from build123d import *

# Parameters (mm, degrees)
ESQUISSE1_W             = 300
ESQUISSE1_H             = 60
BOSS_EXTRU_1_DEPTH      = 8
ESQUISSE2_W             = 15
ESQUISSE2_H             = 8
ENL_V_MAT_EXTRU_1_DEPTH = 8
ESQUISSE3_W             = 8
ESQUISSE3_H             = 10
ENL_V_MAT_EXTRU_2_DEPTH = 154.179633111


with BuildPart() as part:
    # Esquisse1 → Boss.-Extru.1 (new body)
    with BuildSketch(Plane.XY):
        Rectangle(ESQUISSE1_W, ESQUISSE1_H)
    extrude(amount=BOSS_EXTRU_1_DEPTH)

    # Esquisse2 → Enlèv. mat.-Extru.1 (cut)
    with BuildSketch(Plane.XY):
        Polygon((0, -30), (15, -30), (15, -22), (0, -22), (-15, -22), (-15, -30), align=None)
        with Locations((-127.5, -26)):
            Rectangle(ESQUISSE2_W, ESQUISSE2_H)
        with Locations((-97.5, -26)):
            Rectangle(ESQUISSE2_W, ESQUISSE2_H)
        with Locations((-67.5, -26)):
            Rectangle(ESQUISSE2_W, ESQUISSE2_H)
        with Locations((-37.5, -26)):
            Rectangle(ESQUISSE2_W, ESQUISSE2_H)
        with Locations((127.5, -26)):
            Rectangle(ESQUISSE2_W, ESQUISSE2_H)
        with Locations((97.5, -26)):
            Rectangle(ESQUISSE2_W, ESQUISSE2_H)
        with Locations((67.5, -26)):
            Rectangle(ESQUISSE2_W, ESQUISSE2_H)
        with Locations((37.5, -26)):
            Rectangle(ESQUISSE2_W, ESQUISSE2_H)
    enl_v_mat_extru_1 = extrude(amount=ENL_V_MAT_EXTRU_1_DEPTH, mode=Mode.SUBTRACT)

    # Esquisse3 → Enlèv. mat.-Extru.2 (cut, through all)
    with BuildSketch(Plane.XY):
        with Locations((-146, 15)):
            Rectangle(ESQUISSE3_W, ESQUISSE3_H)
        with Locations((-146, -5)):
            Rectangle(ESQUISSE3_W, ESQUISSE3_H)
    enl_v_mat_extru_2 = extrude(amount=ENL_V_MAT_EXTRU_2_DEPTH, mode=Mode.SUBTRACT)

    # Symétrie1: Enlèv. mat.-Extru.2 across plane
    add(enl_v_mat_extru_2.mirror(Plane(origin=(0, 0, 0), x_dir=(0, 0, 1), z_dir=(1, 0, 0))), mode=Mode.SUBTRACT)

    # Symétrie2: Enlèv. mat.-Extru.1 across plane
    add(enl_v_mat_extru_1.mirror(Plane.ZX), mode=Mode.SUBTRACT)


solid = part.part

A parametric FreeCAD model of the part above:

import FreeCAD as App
import Part
import Sketcher

V = App.Vector
Q = App.Units.Quantity


def add_polygon(sketch, points):
    """Adds a closed chain of lines whose ends are joined by coincident constraints."""
    first, n = sketch.GeometryCount, len(points)
    for a, b in zip(points, points[1:] + points[:1]):
        sketch.addGeometry(Part.LineSegment(App.Vector(*a, 0), App.Vector(*b, 0)), False)
    for i in range(n):
        sketch.addConstraint(Sketcher.Constraint("Coincident", first + i, 2, first + (i + 1) % n, 1))

doc = App.newDocument("Part")
params = doc.addObject("Spreadsheet::Sheet", "Params")
for row, (alias, value) in enumerate([
    ("sketch1_width", "300 mm"),
    ("sketch1_height", "60 mm"),
    ("pad1_length", "8 mm"),
    ("sketch2_width", "30 mm"),
    ("sketch2_width2", "15 mm"),
    ("sketch2_height", "8 mm"),
    ("pocket1_length", "8 mm"),
    ("sketch3_width", "8 mm"),
    ("sketch3_height", "10 mm"),
], start=1):
    params.set(f"A{row}", alias)
    params.set(f"B{row}", "=" + value)
    params.setAlias(f"B{row}", alias)

body = doc.addObject("PartDesign::Body", "Body")

sketch1 = doc.addObject("Sketcher::SketchObject", "Sketch")
body.addObject(sketch1)
sketch1.AttachmentSupport = (doc.XY_Plane, [""])
sketch1.MapMode = "FlatFace"
add_polygon(sketch1, [(-150, 30), (-150, -30), (150, -30), (150, 30)])
sketch1.addConstraint([
    Sketcher.Constraint("Vertical", 0),
    Sketcher.Constraint("Horizontal", 1),
    Sketcher.Constraint("Vertical", 2),
    Sketcher.Constraint("Horizontal", 3),
    Sketcher.Constraint("Symmetric", 0, 2, 2, 2, -1, 1),
    Sketcher.Constraint("DistanceX", 1, 1, 1, 2, Q("300 mm")),
    Sketcher.Constraint("DistanceY", 0, 2, 0, 1, Q("60 mm")),
])
sketch1.setExpression("Constraints[9]", "Params.sketch1_width")
sketch1.setExpression("Constraints[10]", "Params.sketch1_height")
pad1 = doc.addObject("PartDesign::Pad", "Pad")
body.addObject(pad1)
pad1.Profile = sketch1
pad1.setExpression("Length", "Params.pad1_length")

sketch2 = doc.addObject("Sketcher::SketchObject", "Sketch001")
body.addObject(sketch2)
sketch2.AttachmentSupport = (doc.XY_Plane, [""])
sketch2.MapMode = "FlatFace"
add_polygon(sketch2, [(15, -30), (15, -22), (-15, -22), (-15, -30)])
add_polygon(sketch2, [(-135, -22), (-135, -30), (-120, -30), (-120, -22)])
add_polygon(sketch2, [(-105, -22), (-105, -30), (-90, -30), (-90, -22)])
add_polygon(sketch2, [(-75, -22), (-75, -30), (-60, -30), (-60, -22)])
add_polygon(sketch2, [(-45, -22), (-45, -30), (-30, -30), (-30, -22)])
add_polygon(sketch2, [(120, -22), (120, -30), (135, -30), (135, -22)])
add_polygon(sketch2, [(90, -22), (90, -30), (105, -30), (105, -22)])
add_polygon(sketch2, [(60, -22), (60, -30), (75, -30), (75, -22)])
add_polygon(sketch2, [(30, -22), (30, -30), (45, -30), (45, -22)])
sketch2.addConstraint([
    Sketcher.Constraint("Vertical", 0),
    Sketcher.Constraint("Horizontal", 1),
    Sketcher.Constraint("Vertical", 2),
    Sketcher.Constraint("Horizontal", 3),
    Sketcher.Constraint("Vertical", 4),
    Sketcher.Constraint("Horizontal", 5),
    Sketcher.Constraint("Vertical", 6),
    Sketcher.Constraint("Horizontal", 7),
    Sketcher.Constraint("Vertical", 8),
    Sketcher.Constraint("Horizontal", 9),
    Sketcher.Constraint("Vertical", 10),
    Sketcher.Constraint("Horizontal", 11),
    Sketcher.Constraint("Vertical", 12),
    Sketcher.Constraint("Horizontal", 13),
    Sketcher.Constraint("Vertical", 14),
    Sketcher.Constraint("Horizontal", 15),
    Sketcher.Constraint("Vertical", 16),
    Sketcher.Constraint("Horizontal", 17),
    Sketcher.Constraint("Vertical", 18),
    Sketcher.Constraint("Horizontal", 19),
    Sketcher.Constraint("Vertical", 20),
    Sketcher.Constraint("Horizontal", 21),
    Sketcher.Constraint("Vertical", 22),
    Sketcher.Constraint("Horizontal", 23),
    Sketcher.Constraint("Vertical", 24),
    Sketcher.Constraint("Horizontal", 25),
    Sketcher.Constraint("Vertical", 26),
    Sketcher.Constraint("Horizontal", 27),
    Sketcher.Constraint("Vertical", 28),
    Sketcher.Constraint("Horizontal", 29),
    Sketcher.Constraint("Vertical", 30),
    Sketcher.Constraint("Horizontal", 31),
    Sketcher.Constraint("Vertical", 32),
    Sketcher.Constraint("Horizontal", 33),
    Sketcher.Constraint("Vertical", 34),
    Sketcher.Constraint("Horizontal", 35),
    Sketcher.Constraint("Symmetric", 5, 2, 20, 2, -2),
    Sketcher.Constraint("Symmetric", 7, 2, 22, 2, -2),
    Sketcher.Constraint("Symmetric", 9, 2, 24, 2, -2),
    Sketcher.Constraint("Symmetric", 11, 2, 26, 2, -2),
    Sketcher.Constraint("Symmetric", 13, 2, 28, 2, -2),
    Sketcher.Constraint("Symmetric", 15, 2, 30, 2, -2),
    Sketcher.Constraint("Symmetric", 17, 2, 32, 2, -2),
    Sketcher.Constraint("Symmetric", 19, 2, 34, 2, -2),
    Sketcher.Constraint("Horizontal", 3, 2, 4, 2),
    Sketcher.Constraint("Horizontal", 1, 2, 6, 2),
    Sketcher.Constraint("Horizontal", 5, 2, 8, 2),
    Sketcher.Constraint("Horizontal", 7, 2, 10, 2),
    Sketcher.Constraint("Horizontal", 9, 2, 12, 2),
    Sketcher.Constraint("Horizontal", 11, 2, 14, 2),
    Sketcher.Constraint("Horizontal", 13, 2, 16, 2),
    Sketcher.Constraint("Horizontal", 15, 2, 18, 2),
    Sketcher.Constraint("Equal", 7, 9),
    Sketcher.Constraint("Equal", 11, 13),
    Sketcher.Constraint("Equal", 15, 17),
    Sketcher.Constraint("DistanceX", 1, 2, 1, 1, Q("30 mm")),
    Sketcher.Constraint("DistanceX", 5, 1, 5, 2, Q("15 mm")),
    Sketcher.Constraint("DistanceY", 0, 1, 0, 2, Q("8 mm")),
    Sketcher.Constraint("DistanceX", -1, 1, 0, 2, Q("15 mm")),
    Sketcher.Constraint("DistanceY", 0, 2, -1, 1, Q("22 mm")),
    Sketcher.Constraint("DistanceX", 4, 2, -1, 1, Q("135 mm")),
    Sketcher.Constraint("DistanceX", 8, 2, -1, 1, Q("105 mm")),
    Sketcher.Constraint("DistanceX", 12, 2, -1, 1, Q("75 mm")),
    Sketcher.Constraint("DistanceX", 16, 2, -1, 1, Q("45 mm")),
])
sketch2.setExpression("Constraints[91]", "Params.sketch2_width")
sketch2.setExpression("Constraints[92]", "Params.sketch2_width2")
sketch2.setExpression("Constraints[93]", "Params.sketch2_height")
pocket1 = doc.addObject("PartDesign::Pocket", "Pocket")
body.addObject(pocket1)
pocket1.Profile = sketch2
pocket1.setExpression("Length", "Params.pocket1_length")
pocket1.Reversed = True

sketch3 = doc.addObject("Sketcher::SketchObject", "Sketch002")
body.addObject(sketch3)
sketch3.AttachmentSupport = (doc.XY_Plane, [""])
sketch3.MapMode = "FlatFace"
add_polygon(sketch3, [(-150, 20), (-150, 10), (-142, 10), (-142, 20)])
add_polygon(sketch3, [(-150, 0), (-150, -10), (-142, -10), (-142, 0)])
sketch3.addConstraint([
    Sketcher.Constraint("Vertical", 0),
    Sketcher.Constraint("Horizontal", 1),
    Sketcher.Constraint("Vertical", 2),
    Sketcher.Constraint("Horizontal", 3),
    Sketcher.Constraint("Vertical", 4),
    Sketcher.Constraint("Horizontal", 5),
    Sketcher.Constraint("Vertical", 6),
    Sketcher.Constraint("Horizontal", 7),
    Sketcher.Constraint("Symmetric", 0, 2, 4, 2, -1),
    Sketcher.Constraint("PointOnObject", 6, 2, -1),
    Sketcher.Constraint("Vertical", 2, 2, 5, 2),
    Sketcher.Constraint("Equal", 2, 4),
    Sketcher.Constraint("DistanceX", 1, 1, 1, 2, Q("8 mm")),
    Sketcher.Constraint("DistanceY", 0, 2, 0, 1, Q("10 mm")),
    Sketcher.Constraint("DistanceX", 0, 2, -1, 1, Q("150 mm")),
])
sketch3.setExpression("Constraints[20]", "Params.sketch3_width")
sketch3.setExpression("Constraints[21]", "Params.sketch3_height")
pocket2 = doc.addObject("PartDesign::Pocket", "Pocket001")
body.addObject(pocket2)
pocket2.Profile = sketch3
pocket2.Type = "ThroughAll"
pocket2.Reversed = True
doc.recompute()

mirrored = doc.addObject("PartDesign::Mirrored", "Mirrored")
body.addObject(mirrored)
mirrored.Originals = [pocket2]
mirrored.MirrorPlane = (doc.YZ_Plane, [""])
body.Tip = mirrored
doc.recompute()

mirrored2 = doc.addObject("PartDesign::Mirrored", "Mirrored001")
body.addObject(mirrored2)
mirrored2.Originals = [pocket1]
mirrored2.MirrorPlane = (doc.XZ_Plane, [""])
body.Tip = mirrored2

doc.recompute()
